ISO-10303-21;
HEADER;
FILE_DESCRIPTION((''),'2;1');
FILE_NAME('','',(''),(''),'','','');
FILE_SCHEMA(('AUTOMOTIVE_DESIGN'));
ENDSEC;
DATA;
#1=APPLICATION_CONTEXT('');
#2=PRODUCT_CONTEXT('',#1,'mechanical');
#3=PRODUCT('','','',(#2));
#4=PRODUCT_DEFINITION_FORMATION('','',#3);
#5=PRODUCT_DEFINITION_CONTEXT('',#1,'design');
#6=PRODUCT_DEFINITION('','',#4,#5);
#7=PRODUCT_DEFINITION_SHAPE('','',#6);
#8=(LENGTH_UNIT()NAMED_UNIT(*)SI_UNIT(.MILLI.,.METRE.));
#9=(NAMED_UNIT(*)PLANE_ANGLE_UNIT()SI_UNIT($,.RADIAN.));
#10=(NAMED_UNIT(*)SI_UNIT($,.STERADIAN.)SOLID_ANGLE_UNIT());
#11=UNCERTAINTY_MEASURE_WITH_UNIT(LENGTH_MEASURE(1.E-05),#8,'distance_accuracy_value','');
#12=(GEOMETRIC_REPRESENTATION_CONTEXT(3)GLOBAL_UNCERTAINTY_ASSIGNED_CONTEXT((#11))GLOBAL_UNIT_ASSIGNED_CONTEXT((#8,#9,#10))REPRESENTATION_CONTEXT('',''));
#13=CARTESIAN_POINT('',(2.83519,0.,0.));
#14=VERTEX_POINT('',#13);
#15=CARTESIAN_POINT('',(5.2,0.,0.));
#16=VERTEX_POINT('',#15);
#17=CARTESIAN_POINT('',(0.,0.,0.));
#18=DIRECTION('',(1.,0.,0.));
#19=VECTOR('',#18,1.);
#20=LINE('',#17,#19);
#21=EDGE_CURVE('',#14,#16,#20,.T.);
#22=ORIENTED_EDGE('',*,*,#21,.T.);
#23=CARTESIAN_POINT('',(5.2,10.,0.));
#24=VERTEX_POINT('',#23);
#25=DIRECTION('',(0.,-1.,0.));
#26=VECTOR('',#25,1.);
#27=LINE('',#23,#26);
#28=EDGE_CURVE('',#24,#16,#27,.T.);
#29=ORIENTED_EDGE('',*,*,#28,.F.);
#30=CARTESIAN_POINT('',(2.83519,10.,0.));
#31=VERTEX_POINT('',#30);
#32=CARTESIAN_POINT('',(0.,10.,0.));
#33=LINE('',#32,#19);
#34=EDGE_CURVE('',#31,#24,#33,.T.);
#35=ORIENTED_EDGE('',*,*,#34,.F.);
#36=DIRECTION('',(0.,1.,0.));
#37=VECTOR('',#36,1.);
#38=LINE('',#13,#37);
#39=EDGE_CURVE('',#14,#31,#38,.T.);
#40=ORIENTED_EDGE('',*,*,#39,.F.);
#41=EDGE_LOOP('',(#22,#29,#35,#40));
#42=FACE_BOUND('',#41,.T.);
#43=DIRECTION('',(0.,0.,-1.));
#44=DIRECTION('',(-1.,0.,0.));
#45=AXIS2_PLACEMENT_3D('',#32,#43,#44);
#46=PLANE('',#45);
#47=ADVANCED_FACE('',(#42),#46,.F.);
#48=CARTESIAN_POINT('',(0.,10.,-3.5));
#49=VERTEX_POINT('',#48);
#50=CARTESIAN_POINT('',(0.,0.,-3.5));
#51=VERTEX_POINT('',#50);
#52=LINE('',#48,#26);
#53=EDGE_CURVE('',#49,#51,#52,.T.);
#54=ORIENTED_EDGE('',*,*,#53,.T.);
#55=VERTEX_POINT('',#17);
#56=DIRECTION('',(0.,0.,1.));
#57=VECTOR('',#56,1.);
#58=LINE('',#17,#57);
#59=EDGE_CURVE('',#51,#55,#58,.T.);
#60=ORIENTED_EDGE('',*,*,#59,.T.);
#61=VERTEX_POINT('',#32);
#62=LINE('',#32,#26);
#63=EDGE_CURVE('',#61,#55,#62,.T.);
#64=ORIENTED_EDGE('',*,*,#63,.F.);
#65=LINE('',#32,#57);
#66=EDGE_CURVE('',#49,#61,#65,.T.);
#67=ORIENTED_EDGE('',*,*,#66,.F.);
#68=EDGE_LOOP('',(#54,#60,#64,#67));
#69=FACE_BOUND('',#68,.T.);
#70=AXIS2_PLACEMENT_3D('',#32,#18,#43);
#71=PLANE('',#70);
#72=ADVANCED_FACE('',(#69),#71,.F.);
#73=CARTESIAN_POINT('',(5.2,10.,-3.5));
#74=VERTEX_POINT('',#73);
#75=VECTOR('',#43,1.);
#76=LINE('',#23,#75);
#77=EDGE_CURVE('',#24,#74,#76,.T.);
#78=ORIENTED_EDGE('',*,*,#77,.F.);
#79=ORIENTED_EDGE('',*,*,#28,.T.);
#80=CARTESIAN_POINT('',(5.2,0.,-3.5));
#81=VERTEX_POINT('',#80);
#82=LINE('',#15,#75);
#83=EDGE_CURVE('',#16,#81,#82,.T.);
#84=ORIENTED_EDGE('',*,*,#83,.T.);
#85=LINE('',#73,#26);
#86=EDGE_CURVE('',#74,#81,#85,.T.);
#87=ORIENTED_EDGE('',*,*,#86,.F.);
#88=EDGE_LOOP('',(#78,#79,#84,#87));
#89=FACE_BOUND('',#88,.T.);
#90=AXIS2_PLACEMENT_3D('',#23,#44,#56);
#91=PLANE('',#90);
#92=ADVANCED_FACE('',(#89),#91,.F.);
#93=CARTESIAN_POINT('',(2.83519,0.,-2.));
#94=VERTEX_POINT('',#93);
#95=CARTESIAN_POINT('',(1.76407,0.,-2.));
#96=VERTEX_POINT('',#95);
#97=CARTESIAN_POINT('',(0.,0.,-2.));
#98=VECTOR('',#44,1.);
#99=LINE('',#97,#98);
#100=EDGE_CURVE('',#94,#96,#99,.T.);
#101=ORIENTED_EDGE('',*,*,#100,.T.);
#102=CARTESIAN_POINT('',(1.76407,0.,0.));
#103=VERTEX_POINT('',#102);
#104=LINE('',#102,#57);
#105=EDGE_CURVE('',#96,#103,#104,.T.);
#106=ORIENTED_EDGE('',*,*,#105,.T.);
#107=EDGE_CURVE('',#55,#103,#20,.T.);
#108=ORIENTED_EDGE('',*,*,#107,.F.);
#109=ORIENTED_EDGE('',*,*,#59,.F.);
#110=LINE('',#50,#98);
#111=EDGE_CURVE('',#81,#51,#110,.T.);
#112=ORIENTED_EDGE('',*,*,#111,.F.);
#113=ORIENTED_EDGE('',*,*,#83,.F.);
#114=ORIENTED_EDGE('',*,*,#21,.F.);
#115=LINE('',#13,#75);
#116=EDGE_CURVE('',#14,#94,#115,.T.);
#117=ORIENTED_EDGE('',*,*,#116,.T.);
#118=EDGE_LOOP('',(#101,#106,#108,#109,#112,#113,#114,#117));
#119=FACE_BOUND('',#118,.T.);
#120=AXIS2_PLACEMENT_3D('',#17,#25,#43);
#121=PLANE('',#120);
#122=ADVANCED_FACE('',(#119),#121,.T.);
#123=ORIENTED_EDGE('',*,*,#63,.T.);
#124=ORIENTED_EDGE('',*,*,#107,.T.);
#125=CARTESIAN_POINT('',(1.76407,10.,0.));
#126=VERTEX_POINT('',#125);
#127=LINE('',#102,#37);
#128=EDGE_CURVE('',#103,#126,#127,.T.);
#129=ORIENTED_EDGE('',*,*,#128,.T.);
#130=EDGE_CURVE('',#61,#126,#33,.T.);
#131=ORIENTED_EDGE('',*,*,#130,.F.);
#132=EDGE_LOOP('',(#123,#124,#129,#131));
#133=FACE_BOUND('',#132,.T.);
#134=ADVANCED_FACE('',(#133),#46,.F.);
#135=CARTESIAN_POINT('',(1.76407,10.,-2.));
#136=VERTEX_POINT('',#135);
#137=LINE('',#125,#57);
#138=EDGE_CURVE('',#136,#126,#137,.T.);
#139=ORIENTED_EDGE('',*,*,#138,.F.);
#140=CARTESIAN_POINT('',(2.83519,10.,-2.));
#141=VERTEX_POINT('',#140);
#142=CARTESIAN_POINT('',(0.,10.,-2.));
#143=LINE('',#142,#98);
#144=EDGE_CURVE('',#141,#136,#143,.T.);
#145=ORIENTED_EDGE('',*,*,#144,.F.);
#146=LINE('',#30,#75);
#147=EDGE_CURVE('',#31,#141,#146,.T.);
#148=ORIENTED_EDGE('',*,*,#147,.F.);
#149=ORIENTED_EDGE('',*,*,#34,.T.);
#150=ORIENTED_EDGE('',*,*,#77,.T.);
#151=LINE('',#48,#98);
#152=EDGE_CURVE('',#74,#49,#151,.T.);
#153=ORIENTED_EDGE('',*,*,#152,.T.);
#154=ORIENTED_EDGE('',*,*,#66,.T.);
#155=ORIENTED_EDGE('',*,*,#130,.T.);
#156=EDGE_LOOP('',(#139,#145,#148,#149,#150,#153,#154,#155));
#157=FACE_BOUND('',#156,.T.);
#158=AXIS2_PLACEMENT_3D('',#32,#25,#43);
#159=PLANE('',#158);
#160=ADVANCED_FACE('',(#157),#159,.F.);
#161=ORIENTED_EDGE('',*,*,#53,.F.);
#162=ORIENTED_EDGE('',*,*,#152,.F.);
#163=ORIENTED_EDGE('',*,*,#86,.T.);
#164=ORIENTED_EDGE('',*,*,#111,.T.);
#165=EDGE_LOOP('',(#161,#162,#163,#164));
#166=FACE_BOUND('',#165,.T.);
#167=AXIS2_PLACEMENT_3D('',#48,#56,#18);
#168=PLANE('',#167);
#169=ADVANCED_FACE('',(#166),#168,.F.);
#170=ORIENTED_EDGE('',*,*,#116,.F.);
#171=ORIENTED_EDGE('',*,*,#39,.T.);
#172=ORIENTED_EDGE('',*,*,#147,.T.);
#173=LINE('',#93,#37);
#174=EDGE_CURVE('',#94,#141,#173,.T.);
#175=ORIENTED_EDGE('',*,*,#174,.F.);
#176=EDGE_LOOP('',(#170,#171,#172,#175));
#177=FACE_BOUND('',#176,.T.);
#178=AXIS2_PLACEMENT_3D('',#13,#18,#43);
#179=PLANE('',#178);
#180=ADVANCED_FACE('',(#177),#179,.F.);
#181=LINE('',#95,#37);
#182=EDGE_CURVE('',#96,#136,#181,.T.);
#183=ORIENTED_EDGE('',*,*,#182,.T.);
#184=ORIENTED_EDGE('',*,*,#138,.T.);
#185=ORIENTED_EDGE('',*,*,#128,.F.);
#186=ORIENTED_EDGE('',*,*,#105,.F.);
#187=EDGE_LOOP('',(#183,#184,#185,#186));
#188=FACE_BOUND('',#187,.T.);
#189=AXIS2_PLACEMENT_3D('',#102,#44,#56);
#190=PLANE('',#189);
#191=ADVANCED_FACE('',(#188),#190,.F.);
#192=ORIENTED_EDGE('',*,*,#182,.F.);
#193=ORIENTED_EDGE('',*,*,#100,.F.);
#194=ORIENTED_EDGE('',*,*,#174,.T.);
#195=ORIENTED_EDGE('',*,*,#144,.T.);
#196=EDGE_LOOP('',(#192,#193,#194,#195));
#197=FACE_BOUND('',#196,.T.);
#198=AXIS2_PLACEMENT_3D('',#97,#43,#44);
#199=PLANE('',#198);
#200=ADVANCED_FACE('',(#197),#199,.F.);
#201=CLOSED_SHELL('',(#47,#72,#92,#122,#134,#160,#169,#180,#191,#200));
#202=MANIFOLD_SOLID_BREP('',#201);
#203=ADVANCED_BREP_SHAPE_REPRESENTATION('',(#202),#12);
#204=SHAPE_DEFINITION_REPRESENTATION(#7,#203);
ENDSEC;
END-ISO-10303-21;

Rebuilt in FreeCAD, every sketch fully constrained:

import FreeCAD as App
import Part
import Sketcher

V = App.Vector

doc = App.newDocument("Part")
body = doc.addObject("PartDesign::Body", "Body")

# Sketch on XZ plane
sketch1 = body.newObject("Sketcher::SketchObject", "Sketch")
sketch1.AttachmentSupport = (doc.getObject("XZ_Plane"), [""])
sketch1.MapMode = "FlatFace"
sketch1.addGeometry([
    Part.LineSegment(V(0, -3.5, 0), V(0, 0, 0)),
    Part.LineSegment(V(0, 0, 0), V(5.2, 0, 0)),
    Part.LineSegment(V(5.2, 0, 0), V(5.2, -3.5, 0)),
    Part.LineSegment(V(5.2, -3.5, 0), V(0, -3.5, 0)),
], False)
sketch1.addConstraint([
    Sketcher.Constraint("Coincident", 0, 2, 1, 1),
    Sketcher.Constraint("Coincident", 1, 2, 2, 1),
    Sketcher.Constraint("Coincident", 2, 2, 3, 1),
    Sketcher.Constraint("Coincident", 3, 2, 0, 1),
    Sketcher.Constraint("Vertical", 0),
    Sketcher.Constraint("Horizontal", 1),
    Sketcher.Constraint("Vertical", 2),
    Sketcher.Constraint("Horizontal", 3),
    Sketcher.Constraint("Coincident", 0, 2, -1, 1),
    Sketcher.Constraint("DistanceX", 1, 1, 1, 2, 5.2),
    Sketcher.Constraint("DistanceY", 0, 1, 0, 2, 3.5),
])
pad1 = body.newObject("PartDesign::Pad", "Pad")
pad1.Profile = sketch1
pad1.Length = 10
pad1.Reversed = True

# Sketch on XZ plane
sketch2 = body.newObject("Sketcher::SketchObject", "Sketch001")
sketch2.AttachmentSupport = (doc.getObject("XZ_Plane"), [""])
sketch2.MapMode = "FlatFace"
sketch2.AttachmentOffset = App.Placement(V(0, 0, -10), App.Rotation())
sketch2.addGeometry([
    Part.LineSegment(V(1.8, -2, 0), V(1.8, 0, 0)),
    Part.LineSegment(V(1.8, 0, 0), V(2.8, 0, 0)),
    Part.LineSegment(V(2.8, 0, 0), V(2.8, -2, 0)),
    Part.LineSegment(V(2.8, -2, 0), V(1.8, -2, 0)),
], False)
sketch2.addConstraint([
    Sketcher.Constraint("Coincident", 0, 2, 1, 1),
    Sketcher.Constraint("Coincident", 1, 2, 2, 1),
    Sketcher.Constraint("Coincident", 2, 2, 3, 1),
    Sketcher.Constraint("Coincident", 3, 2, 0, 1),
    Sketcher.Constraint("Vertical", 0),
    Sketcher.Constraint("Horizontal", 1),
    Sketcher.Constraint("Vertical", 2),
    Sketcher.Constraint("Horizontal", 3),
    Sketcher.Constraint("PointOnObject", 0, 2, -1),
    Sketcher.Constraint("DistanceY", 0, 1, 0, 2, 2.0),
    Sketcher.Constraint("DistanceX", 1, 1, 1, 2, 1.07112),
    Sketcher.Constraint("DistanceX", -1, 1, 0, 2, 1.76407),
])
pocket1 = body.newObject("PartDesign::Pocket", "Pocket")
pocket1.Profile = sketch2
pocket1.Length = 10
pocket1.Reversed = True

doc.recompute()
